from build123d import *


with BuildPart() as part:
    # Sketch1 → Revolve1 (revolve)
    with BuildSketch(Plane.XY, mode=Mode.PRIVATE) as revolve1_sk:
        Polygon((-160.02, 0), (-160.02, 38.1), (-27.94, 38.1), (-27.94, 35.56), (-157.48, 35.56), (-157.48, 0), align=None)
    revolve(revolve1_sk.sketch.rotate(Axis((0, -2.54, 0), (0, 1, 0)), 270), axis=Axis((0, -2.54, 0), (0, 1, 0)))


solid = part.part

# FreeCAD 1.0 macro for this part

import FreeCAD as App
import Part
import Sketcher

V = App.Vector
Q = App.Units.Quantity

doc = App.newDocument("Part")
body = doc.addObject("PartDesign::Body", "Body")

# Sketch on XY plane
sketch1 = body.newObject("Sketcher::SketchObject", "Sketch")
sketch1.AttachmentSupport = (doc.getObject("XY_Plane"), [""])
sketch1.MapMode = "FlatFace"
sketch1.addGeometry([
    Part.LineSegment(V(-160.02, 38.1, 0), V(-160.02, 0, 0)),  # 0
    Part.LineSegment(V(-160.02, 0, 0), V(-157.48, 0, 0)),  # 1
    Part.LineSegment(V(-157.48, 0, 0), V(-157.48, 35.56, 0)),  # 2
    Part.LineSegment(V(-157.48, 35.56, 0), V(-27.94, 35.56, 0)),  # 3
    Part.LineSegment(V(-27.94, 35.56, 0), V(-27.94, 38.1, 0)),  # 4
    Part.LineSegment(V(-27.94, 38.1, 0), V(-160.02, 38.1, 0)),  # 5
], False)
sketch1.addConstraint([
    Sketcher.Constraint("Coincident", 0, 2, 1, 1),
    Sketcher.Constraint("Coincident", 1, 2, 2, 1),
    Sketcher.Constraint("Coincident", 2, 2, 3, 1),
    Sketcher.Constraint("Coincident", 3, 2, 4, 1),
    Sketcher.Constraint("Coincident", 4, 2, 5, 1),
    Sketcher.Constraint("Coincident", 5, 2, 0, 1),
    Sketcher.Constraint("Vertical", 0),
    Sketcher.Constraint("Horizontal", 1),
    Sketcher.Constraint("Vertical", 2),
    Sketcher.Constraint("Horizontal", 3),
    Sketcher.Constraint("Vertical", 4),
    Sketcher.Constraint("Horizontal", 5),
    Sketcher.Constraint("PointOnObject", 0, 2, -1),
    Sketcher.Constraint("Equal", 1, 4),
    Sketcher.Constraint("DistanceX", 1, 1, 1, 2, Q("0.1 in")),
    Sketcher.Constraint("DistanceX", 3, 1, 3, 2, Q("5.1 in")),
    Sketcher.Constraint("DistanceY", 0, 2, 0, 1, Q("1.5 in")),
    Sketcher.Constraint("DistanceX", 0, 2, -1, 1, Q("6.3 in")),
])
revolution = body.newObject("PartDesign::Revolution", "Revolution")
revolution.Profile = sketch1
revolution.ReferenceAxis = (sketch1, ["V_Axis"])
revolution.Angle = 360

doc.recompute()
